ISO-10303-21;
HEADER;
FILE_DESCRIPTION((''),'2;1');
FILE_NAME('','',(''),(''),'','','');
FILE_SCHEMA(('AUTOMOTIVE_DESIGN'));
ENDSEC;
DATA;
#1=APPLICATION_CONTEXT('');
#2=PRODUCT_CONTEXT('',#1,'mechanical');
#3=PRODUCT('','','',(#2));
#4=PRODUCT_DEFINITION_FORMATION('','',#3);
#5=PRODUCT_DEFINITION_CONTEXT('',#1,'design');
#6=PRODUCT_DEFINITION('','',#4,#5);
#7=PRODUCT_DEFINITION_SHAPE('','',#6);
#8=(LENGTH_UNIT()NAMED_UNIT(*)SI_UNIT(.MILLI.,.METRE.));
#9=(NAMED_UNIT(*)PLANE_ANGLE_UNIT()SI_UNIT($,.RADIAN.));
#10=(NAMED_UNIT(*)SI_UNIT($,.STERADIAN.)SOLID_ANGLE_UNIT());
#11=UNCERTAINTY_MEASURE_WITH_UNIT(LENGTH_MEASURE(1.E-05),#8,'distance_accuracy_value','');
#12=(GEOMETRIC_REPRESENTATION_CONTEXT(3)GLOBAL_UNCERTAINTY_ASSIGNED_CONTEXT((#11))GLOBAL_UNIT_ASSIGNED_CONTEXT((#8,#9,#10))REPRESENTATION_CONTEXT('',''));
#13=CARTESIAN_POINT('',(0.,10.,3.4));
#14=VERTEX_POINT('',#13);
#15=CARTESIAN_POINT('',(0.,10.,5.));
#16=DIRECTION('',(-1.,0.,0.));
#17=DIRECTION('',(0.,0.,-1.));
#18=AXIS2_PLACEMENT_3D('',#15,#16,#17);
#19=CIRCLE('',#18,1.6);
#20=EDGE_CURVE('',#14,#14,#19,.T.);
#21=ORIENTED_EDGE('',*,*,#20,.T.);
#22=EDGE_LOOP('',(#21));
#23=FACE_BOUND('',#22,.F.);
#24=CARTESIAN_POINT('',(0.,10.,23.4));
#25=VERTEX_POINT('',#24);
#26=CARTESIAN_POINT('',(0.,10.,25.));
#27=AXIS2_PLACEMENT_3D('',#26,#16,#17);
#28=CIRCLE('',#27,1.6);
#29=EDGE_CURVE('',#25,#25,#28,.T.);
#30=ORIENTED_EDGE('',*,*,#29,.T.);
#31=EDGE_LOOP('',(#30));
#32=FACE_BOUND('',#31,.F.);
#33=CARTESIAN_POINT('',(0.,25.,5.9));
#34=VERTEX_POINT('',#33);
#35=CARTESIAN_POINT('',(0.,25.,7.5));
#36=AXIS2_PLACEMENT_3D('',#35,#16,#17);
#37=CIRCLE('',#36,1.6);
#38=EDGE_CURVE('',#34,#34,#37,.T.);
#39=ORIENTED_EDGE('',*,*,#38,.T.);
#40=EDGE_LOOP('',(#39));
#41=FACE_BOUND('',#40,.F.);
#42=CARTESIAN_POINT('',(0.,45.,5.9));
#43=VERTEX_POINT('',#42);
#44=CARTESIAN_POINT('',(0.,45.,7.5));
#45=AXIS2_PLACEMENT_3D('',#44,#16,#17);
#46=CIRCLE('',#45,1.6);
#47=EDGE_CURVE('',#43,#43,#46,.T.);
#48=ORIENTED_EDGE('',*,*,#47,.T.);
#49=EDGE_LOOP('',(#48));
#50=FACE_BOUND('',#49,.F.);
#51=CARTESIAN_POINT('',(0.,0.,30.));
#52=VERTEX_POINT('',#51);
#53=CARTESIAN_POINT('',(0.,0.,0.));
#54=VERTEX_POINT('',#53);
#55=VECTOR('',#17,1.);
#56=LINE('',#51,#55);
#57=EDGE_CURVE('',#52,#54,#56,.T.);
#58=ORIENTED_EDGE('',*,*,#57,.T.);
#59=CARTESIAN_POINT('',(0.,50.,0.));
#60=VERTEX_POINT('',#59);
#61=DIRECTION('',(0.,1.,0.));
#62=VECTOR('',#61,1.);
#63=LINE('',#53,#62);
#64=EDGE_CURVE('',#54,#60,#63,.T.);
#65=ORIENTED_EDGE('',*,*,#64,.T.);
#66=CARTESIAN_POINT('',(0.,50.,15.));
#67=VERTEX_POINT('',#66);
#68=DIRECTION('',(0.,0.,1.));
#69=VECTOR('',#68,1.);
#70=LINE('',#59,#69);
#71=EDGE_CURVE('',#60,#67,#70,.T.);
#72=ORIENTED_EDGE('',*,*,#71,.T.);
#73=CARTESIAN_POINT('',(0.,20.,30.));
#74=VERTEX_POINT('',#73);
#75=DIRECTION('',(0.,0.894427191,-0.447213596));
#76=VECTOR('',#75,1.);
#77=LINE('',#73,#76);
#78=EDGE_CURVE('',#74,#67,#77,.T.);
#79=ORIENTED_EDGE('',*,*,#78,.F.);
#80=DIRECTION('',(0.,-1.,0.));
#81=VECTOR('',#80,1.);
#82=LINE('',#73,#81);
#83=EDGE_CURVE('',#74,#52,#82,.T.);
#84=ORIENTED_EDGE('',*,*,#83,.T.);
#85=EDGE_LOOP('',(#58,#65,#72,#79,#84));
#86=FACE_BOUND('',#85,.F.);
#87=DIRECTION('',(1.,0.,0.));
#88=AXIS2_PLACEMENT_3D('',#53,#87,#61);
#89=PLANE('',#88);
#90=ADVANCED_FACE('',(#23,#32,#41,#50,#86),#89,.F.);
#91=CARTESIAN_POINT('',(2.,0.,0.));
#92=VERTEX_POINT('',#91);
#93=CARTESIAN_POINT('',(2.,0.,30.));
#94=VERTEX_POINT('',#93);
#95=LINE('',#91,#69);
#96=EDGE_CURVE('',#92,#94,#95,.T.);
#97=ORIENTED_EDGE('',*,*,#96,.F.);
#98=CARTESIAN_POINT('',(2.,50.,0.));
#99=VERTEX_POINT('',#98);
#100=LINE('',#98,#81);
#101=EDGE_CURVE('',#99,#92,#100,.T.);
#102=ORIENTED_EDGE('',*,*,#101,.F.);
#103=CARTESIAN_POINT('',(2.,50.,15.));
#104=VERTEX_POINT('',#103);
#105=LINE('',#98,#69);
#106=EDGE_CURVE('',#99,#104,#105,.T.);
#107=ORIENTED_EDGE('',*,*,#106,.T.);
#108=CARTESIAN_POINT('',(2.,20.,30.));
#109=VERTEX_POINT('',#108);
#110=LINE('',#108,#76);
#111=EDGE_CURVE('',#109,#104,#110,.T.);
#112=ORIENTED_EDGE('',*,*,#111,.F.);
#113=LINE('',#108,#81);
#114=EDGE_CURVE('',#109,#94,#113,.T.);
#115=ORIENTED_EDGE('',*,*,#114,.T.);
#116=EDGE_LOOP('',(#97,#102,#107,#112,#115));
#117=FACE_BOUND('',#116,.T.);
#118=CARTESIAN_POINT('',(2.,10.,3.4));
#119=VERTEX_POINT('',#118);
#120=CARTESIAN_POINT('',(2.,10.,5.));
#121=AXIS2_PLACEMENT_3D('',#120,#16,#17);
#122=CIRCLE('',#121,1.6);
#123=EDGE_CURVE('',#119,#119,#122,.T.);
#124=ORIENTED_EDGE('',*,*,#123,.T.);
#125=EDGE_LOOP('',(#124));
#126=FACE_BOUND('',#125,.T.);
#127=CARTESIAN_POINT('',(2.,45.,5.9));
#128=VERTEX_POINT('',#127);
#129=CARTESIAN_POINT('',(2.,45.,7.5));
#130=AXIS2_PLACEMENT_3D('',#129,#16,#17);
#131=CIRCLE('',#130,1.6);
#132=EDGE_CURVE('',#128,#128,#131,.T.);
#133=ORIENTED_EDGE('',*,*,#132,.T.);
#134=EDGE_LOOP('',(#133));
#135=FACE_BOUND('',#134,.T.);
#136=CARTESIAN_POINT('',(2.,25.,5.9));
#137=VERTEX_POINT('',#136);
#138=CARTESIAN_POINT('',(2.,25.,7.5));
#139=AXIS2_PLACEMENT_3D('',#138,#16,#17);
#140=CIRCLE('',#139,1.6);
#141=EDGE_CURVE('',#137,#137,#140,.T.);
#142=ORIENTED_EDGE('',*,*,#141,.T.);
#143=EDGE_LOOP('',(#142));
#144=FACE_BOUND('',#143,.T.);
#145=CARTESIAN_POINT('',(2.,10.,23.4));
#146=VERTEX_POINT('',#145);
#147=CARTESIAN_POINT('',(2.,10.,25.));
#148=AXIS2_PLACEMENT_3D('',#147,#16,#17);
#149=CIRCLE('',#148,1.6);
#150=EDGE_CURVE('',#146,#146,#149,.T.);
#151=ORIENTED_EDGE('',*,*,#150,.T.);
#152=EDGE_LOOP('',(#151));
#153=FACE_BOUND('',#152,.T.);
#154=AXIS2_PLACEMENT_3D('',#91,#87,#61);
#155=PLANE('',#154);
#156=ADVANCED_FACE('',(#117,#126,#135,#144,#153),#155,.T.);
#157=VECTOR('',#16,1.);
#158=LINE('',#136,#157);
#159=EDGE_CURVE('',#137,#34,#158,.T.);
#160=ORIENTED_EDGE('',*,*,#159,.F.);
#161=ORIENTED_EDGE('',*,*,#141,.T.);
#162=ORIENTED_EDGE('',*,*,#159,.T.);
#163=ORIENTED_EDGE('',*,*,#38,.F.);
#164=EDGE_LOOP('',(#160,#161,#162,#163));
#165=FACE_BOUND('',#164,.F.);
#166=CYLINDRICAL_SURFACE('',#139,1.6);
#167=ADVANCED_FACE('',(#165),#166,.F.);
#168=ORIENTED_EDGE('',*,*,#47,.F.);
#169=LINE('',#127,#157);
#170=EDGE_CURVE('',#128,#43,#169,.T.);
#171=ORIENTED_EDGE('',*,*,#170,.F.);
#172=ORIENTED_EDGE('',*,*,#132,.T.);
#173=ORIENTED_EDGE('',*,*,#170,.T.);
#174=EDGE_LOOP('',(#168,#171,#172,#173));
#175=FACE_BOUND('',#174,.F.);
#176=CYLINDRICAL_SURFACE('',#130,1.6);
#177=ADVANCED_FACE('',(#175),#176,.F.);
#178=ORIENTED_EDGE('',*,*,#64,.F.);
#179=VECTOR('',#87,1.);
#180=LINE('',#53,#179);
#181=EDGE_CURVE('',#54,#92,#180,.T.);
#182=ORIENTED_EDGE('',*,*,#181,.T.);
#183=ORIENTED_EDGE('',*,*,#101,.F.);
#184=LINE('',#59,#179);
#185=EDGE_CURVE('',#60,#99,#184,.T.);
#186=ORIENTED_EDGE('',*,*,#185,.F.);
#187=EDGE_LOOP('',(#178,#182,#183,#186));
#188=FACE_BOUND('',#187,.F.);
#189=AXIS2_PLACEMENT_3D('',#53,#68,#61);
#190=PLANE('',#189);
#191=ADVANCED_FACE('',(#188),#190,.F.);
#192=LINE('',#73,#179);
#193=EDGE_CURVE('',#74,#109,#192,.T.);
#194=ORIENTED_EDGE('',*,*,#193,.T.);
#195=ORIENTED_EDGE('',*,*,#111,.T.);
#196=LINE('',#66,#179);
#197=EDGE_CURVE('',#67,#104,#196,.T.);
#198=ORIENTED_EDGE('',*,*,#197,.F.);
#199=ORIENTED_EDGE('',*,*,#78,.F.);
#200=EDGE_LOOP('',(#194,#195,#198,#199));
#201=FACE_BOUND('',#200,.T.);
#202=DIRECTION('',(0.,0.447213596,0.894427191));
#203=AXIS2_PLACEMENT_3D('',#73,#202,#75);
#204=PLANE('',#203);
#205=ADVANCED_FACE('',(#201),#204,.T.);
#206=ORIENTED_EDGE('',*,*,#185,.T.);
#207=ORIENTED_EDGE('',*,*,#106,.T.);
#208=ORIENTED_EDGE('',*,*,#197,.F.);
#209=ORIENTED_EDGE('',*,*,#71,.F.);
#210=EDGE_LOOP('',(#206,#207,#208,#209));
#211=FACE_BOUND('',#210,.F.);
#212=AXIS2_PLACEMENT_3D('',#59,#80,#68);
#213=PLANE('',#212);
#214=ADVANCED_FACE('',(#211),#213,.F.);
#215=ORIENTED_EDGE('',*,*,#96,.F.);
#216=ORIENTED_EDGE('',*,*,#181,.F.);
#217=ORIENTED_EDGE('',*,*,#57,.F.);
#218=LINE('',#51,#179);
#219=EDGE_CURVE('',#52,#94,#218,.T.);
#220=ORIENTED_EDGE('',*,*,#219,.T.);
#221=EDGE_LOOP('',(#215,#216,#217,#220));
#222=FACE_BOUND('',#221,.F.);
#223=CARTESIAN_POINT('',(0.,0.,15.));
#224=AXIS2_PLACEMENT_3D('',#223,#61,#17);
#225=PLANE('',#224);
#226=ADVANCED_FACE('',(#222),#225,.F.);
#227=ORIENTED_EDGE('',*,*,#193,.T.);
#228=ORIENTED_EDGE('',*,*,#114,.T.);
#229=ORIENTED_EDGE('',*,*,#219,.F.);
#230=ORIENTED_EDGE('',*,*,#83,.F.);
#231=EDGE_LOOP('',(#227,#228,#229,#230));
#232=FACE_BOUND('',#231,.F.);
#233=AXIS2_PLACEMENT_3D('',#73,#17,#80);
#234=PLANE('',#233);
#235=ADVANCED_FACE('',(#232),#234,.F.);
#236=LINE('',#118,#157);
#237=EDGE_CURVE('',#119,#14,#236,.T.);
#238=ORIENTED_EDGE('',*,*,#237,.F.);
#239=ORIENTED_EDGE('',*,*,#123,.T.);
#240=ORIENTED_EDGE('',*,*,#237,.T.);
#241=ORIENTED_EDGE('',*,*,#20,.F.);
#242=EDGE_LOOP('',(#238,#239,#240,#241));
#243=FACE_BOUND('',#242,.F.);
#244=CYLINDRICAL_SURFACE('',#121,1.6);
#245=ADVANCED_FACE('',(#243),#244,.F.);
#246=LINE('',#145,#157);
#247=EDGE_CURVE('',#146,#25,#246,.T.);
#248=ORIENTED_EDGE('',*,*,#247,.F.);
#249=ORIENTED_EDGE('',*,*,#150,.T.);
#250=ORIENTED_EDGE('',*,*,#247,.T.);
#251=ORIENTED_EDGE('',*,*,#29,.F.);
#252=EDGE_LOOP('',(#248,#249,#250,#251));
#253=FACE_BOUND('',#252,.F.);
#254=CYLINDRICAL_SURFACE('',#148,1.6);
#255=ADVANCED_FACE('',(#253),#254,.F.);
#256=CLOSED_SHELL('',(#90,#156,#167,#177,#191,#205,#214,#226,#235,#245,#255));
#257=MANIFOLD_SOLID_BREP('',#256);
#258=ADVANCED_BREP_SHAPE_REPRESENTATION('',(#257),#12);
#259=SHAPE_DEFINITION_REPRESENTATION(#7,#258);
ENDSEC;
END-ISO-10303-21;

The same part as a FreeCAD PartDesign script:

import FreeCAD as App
import Part
import Sketcher


def add_polygon(sketch, points):
    """Adds a closed chain of lines whose ends are joined by coincident constraints."""
    first, n = sketch.GeometryCount, len(points)
    for a, b in zip(points, points[1:] + points[:1]):
        sketch.addGeometry(Part.LineSegment(App.Vector(*a, 0), App.Vector(*b, 0)), False)
    for i in range(n):
        sketch.addConstraint(Sketcher.Constraint("Coincident", first + i, 2, first + (i + 1) % n, 1))

doc = App.newDocument("Part")
body = doc.addObject("PartDesign::Body", "Body")

# Sketch on YZ plane
sketch1 = doc.addObject("Sketcher::SketchObject", "Sketch")
body.addObject(sketch1)
sketch1.AttachmentSupport = (doc.YZ_Plane, [""])
sketch1.MapMode = "FlatFace"
add_polygon(sketch1, [(0, 30), (0, 0), (50, 0), (50, 15), (20, 30)])  # lines 0-4
sketch1.addConstraint(Sketcher.Constraint("Vertical", 0))
sketch1.addConstraint(Sketcher.Constraint("Horizontal", 1))
sketch1.addConstraint(Sketcher.Constraint("Vertical", 2))
sketch1.addConstraint(Sketcher.Constraint("Horizontal", 4))
sketch1.addConstraint(Sketcher.Constraint("Coincident", 0, 2, -1, 1))
sketch1.addConstraint(Sketcher.Constraint("DistanceX", 4, 2, 4, 1, 20.0))
sketch1.addConstraint(Sketcher.Constraint("DistanceY", 0, 2, 0, 1, 30.0))
sketch1.addConstraint(Sketcher.Constraint("DistanceY", 2, 1, 2, 2, 15.0))
sketch1.addConstraint(Sketcher.Constraint("DistanceX", 3, 2, 2, 2, 30.0))
pad1 = doc.addObject("PartDesign::Pad", "Pad")
body.addObject(pad1)
pad1.Profile = sketch1
pad1.Length = 2

# Sketch on YZ plane
sketch2 = doc.addObject("Sketcher::SketchObject", "Sketch001")
body.addObject(sketch2)
sketch2.AttachmentSupport = (doc.YZ_Plane, [""])
sketch2.MapMode = "FlatFace"
sketch2.AttachmentOffset = App.Placement(App.Vector(0, 0, 2), App.Rotation())
sketch2.addGeometry(Part.Circle(App.Vector(10, 25, 0), App.Vector(0, 0, 1), 1.6), False)
sketch2.addGeometry(Part.Circle(App.Vector(10, 5, 0), App.Vector(0, 0, 1), 1.6), False)
sketch2.addGeometry(Part.Circle(App.Vector(25, 7.5, 0), App.Vector(0, 0, 1), 1.6), False)
sketch2.addGeometry(Part.Circle(App.Vector(45, 7.5, 0), App.Vector(0, 0, 1), 1.6), False)
sketch2.addConstraint(Sketcher.Constraint("Equal", 0, 1))
sketch2.addConstraint(Sketcher.Constraint("Equal", 1, 2))
sketch2.addConstraint(Sketcher.Constraint("Equal", 2, 3))
sketch2.addConstraint(Sketcher.Constraint("Horizontal", 2, 3, 3, 3))
sketch2.addConstraint(Sketcher.Constraint("Vertical", 0, 3, 1, 3))
sketch2.addConstraint(Sketcher.Constraint("Diameter", 0, 3.2))
sketch2.addConstraint(Sketcher.Constraint("DistanceX", -1, 1, 0, 3, 10.0))
sketch2.addConstraint(Sketcher.Constraint("DistanceY", -1, 1, 0, 3, 25.0))
sketch2.addConstraint(Sketcher.Constraint("DistanceY", -1, 1, 1, 3, 5.0))
sketch2.addConstraint(Sketcher.Constraint("DistanceX", -1, 1, 2, 3, 25.0))
sketch2.addConstraint(Sketcher.Constraint("DistanceX", -1, 1, 3, 3, 45.0))
sketch2.addConstraint(Sketcher.Constraint("DistanceY", -1, 1, 2, 3, 7.5))
doc.recompute()
hole = doc.addObject("PartDesign::Hole", "Hole")
body.addObject(hole)
hole.Profile = sketch2
hole.ThreadType = "None"
hole.Diameter = 3.2
hole.DepthType = "ThroughAll"

doc.recompute()
